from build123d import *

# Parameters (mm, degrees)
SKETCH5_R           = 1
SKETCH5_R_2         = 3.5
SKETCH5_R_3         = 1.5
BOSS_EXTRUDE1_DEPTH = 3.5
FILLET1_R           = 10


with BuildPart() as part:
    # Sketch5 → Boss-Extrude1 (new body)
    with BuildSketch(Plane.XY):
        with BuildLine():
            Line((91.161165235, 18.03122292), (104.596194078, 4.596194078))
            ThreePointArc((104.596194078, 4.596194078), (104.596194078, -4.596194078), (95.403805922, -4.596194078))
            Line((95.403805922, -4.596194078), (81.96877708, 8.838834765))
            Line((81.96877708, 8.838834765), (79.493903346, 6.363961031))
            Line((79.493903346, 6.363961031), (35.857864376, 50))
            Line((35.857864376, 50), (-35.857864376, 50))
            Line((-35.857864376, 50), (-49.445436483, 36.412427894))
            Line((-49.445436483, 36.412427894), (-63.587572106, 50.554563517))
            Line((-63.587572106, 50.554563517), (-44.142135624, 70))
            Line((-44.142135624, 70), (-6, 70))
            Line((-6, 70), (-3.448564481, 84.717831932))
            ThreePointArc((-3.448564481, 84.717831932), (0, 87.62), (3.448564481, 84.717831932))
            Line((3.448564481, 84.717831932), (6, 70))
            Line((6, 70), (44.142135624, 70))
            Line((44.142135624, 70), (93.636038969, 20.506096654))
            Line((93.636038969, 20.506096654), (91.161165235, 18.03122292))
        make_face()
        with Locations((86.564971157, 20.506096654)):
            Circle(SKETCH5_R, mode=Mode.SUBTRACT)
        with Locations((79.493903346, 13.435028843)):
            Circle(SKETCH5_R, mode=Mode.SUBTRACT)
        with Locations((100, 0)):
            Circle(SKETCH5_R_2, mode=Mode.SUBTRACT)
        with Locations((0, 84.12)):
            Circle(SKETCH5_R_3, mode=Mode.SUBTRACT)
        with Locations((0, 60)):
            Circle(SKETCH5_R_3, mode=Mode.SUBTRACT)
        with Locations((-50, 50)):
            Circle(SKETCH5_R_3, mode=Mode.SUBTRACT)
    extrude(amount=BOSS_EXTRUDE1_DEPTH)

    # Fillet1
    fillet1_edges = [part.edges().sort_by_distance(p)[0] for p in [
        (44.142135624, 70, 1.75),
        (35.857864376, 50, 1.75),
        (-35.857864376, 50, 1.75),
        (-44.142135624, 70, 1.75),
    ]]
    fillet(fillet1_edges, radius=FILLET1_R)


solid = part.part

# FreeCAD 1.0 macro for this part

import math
import FreeCAD as App
import Part
import Sketcher
Q = App.Units.Quantity


def edges_at(feature, points):
    """Names of the edges that pass closest to the given points."""
    edges = feature.Shape.Edges
    near = lambda p: min(range(len(edges)), key=lambda i: edges[i].distToShape(Part.Vertex(*p))[0])
    return sorted({f"Edge{near(p) + 1}" for p in points})

doc = App.newDocument("Part")
body = doc.addObject("PartDesign::Body", "Body")

# Sketch on XY plane
sketch1 = body.newObject("Sketcher::SketchObject", "Sketch")
sketch1.AttachmentSupport = (doc.getObject("XY_Plane"), [""])
sketch1.MapMode = "FlatFace"
sketch1.addGeometry(Part.LineSegment(App.Vector(104.6, 4.6, 0), App.Vector(91.2, 18, 0)), False)
sketch1.addGeometry(Part.LineSegment(App.Vector(91.2, 18, 0), App.Vector(93.6, 20.5, 0)), False)
sketch1.addGeometry(Part.LineSegment(App.Vector(93.6, 20.5, 0), App.Vector(44.1, 70, 0)), False)
sketch1.addGeometry(Part.LineSegment(App.Vector(44.1, 70, 0), App.Vector(6, 70, 0)), False)
sketch1.addGeometry(Part.LineSegment(App.Vector(6, 70, 0), App.Vector(3.4, 84.7, 0)), False)
sketch1.addGeometry(Part.ArcOfCircle(Part.Circle(App.Vector(0, 84.1, 0), App.Vector(0, 0, 1), 3.5), math.radians(10), math.radians(170)), False)
sketch1.addGeometry(Part.LineSegment(App.Vector(-3.4, 84.7, 0), App.Vector(-6, 70, 0)), False)
sketch1.addGeometry(Part.LineSegment(App.Vector(-6, 70, 0), App.Vector(-44.1, 70, 0)), False)
sketch1.addGeometry(Part.LineSegment(App.Vector(-44.1, 70, 0), App.Vector(-63.6, 50.6, 0)), False)
sketch1.addGeometry(Part.LineSegment(App.Vector(-63.6, 50.6, 0), App.Vector(-49.4, 36.4, 0)), False)
sketch1.addGeometry(Part.LineSegment(App.Vector(-49.4, 36.4, 0), App.Vector(-35.9, 50, 0)), False)
sketch1.addGeometry(Part.LineSegment(App.Vector(-35.9, 50, 0), App.Vector(35.9, 50, 0)), False)
sketch1.addGeometry(Part.LineSegment(App.Vector(35.9, 50, 0), App.Vector(79.5, 6.4, 0)), False)
sketch1.addGeometry(Part.LineSegment(App.Vector(79.5, 6.4, 0), App.Vector(82, 8.8, 0)), False)
sketch1.addGeometry(Part.LineSegment(App.Vector(82, 8.8, 0), App.Vector(95.4, -4.6, 0)), False)
sketch1.addGeometry(Part.ArcOfCircle(Part.Circle(App.Vector(100, 0, 0), App.Vector(0, 0, 1), 6.5), math.radians(-135), math.radians(45)), False)
sketch1.addGeometry(Part.Circle(App.Vector(100, 0, 0), App.Vector(0, 0, 1), 3.5), False)
sketch1.addGeometry(Part.Circle(App.Vector(79.5, 13.4, 0), App.Vector(0, 0, 1), 1), False)
sketch1.addGeometry(Part.Circle(App.Vector(86.6, 20.5, 0), App.Vector(0, 0, 1), 1), False)
sketch1.addGeometry(Part.Circle(App.Vector(0, 60, 0), App.Vector(0, 0, 1), 1.5), False)
sketch1.addGeometry(Part.Circle(App.Vector(-50, 50, 0), App.Vector(0, 0, 1), 1.5), False)
sketch1.addGeometry(Part.Circle(App.Vector(0, 84.1, 0), App.Vector(0, 0, 1), 1.5), False)
sketch1.addConstraint(Sketcher.Constraint("Coincident", 0, 2, 1, 1))
sketch1.addConstraint(Sketcher.Constraint("Coincident", 1, 2, 2, 1))
sketch1.addConstraint(Sketcher.Constraint("Coincident", 2, 2, 3, 1))
sketch1.addConstraint(Sketcher.Constraint("Coincident", 3, 2, 4, 1))
sketch1.addConstraint(Sketcher.Constraint("Tangent", 4, 2, 5, 1))
sketch1.addConstraint(Sketcher.Constraint("Tangent", 5, 2, 6, 1))
sketch1.addConstraint(Sketcher.Constraint("Coincident", 6, 2, 7, 1))
sketch1.addConstraint(Sketcher.Constraint("Coincident", 7, 2, 8, 1))
sketch1.addConstraint(Sketcher.Constraint("Coincident", 8, 2, 9, 1))
sketch1.addConstraint(Sketcher.Constraint("Coincident", 9, 2, 10, 1))
sketch1.addConstraint(Sketcher.Constraint("Coincident", 10, 2, 11, 1))
sketch1.addConstraint(Sketcher.Constraint("Coincident", 11, 2, 12, 1))
sketch1.addConstraint(Sketcher.Constraint("Coincident", 12, 2, 13, 1))
sketch1.addConstraint(Sketcher.Constraint("Coincident", 13, 2, 14, 1))
sketch1.addConstraint(Sketcher.Constraint("Tangent", 14, 2, 15, 1))
sketch1.addConstraint(Sketcher.Constraint("Tangent", 15, 2, 0, 1))
sketch1.addConstraint(Sketcher.Constraint("Horizontal", 3))
sketch1.addConstraint(Sketcher.Constraint("Horizontal", 7))
sketch1.addConstraint(Sketcher.Constraint("Horizontal", 11))
sketch1.addConstraint(Sketcher.Constraint("Coincident", 16, 3, 15, 3))
sketch1.addConstraint(Sketcher.Constraint("Coincident", 21, 3, 5, 3))
sketch1.addConstraint(Sketcher.Constraint("Equal", 5, 16))
sketch1.addConstraint(Sketcher.Constraint("Equal", 17, 18))
sketch1.addConstraint(Sketcher.Constraint("Equal", 19, 20))
sketch1.addConstraint(Sketcher.Constraint("Equal", 20, 21))
sketch1.addConstraint(Sketcher.Constraint("Symmetric", 4, 2, 5, 2, -2))
sketch1.addConstraint(Sketcher.Constraint("Symmetric", 2, 2, 7, 2, -2))
sketch1.addConstraint(Sketcher.Constraint("PointOnObject", 15, 3, -1))
sketch1.addConstraint(Sketcher.Constraint("PointOnObject", 19, 3, -2))
sketch1.addConstraint(Sketcher.Constraint("Perpendicular", 0, 1))
sketch1.addConstraint(Sketcher.Constraint("Perpendicular", 1, 2))
sketch1.addConstraint(Sketcher.Constraint("Perpendicular", 2, 8))
sketch1.addConstraint(Sketcher.Constraint("Perpendicular", 8, 9))
sketch1.addConstraint(Sketcher.Constraint("Perpendicular", 9, 10))
sketch1.addConstraint(Sketcher.Constraint("Perpendicular", 10, 12))
sketch1.addConstraint(Sketcher.Constraint("Perpendicular", 12, 13))
sketch1.addConstraint(Sketcher.Constraint("Perpendicular", 13, 14))
sketch1.addConstraint(Sketcher.Constraint("Horizontal", 18, 3, 1, 2))
sketch1.addConstraint(Sketcher.Constraint("Horizontal", 20, 3, 10, 2))
sketch1.addConstraint(Sketcher.Constraint("Vertical", 17, 3, 12, 2))
sketch1.addConstraint(Sketcher.Constraint("Equal", 1, 13))
sketch1.addConstraint(Sketcher.Constraint("Equal", 0, 14))
sketch1.addConstraint(Sketcher.Constraint("Diameter", 16, Q("7 mm")))
sketch1.addConstraint(Sketcher.Constraint("Diameter", 17, Q("2 mm")))
sketch1.addConstraint(Sketcher.Constraint("Diameter", 19, Q("3 mm")))
sketch1.addConstraint(Sketcher.Constraint("Radius", 15, Q("6.5 mm")))
sketch1.addConstraint(Sketcher.Constraint("Angle", 0, Q("135 deg")))
sketch1.addConstraint(Sketcher.Constraint("Distance", 0, Q("19 mm")))
sketch1.addConstraint(Sketcher.Constraint("Distance", 9, Q("20 mm")))
sketch1.addConstraint(Sketcher.Constraint("DistanceX", -1, 1, 15, 3, Q("100 mm")))
sketch1.addConstraint(Sketcher.Constraint("DistanceY", -1, 1, 19, 3, Q("60 mm")))
sketch1.addConstraint(Sketcher.Constraint("DistanceX", 20, 3, -1, 1, Q("50 mm")))
sketch1.addConstraint(Sketcher.Constraint("DistanceY", -1, 1, 20, 3, Q("50 mm")))
sketch1.addConstraint(Sketcher.Constraint("DistanceY", -1, 1, 2, 2, Q("70 mm")))
sketch1.addConstraint(Sketcher.Constraint("DistanceX", -1, 1, 3, 2, Q("6 mm")))
sketch1.addConstraint(Sketcher.Constraint("Distance", 1, Q("3.5 mm")))
sketch1.addConstraint(Sketcher.Constraint("Distance", 8, Q("27.5 mm")))
sketch1.addConstraint(Sketcher.Constraint("DistanceY", -1, 1, 5, 3, Q("84.12 mm")))
sketch1.addConstraint(Sketcher.Constraint("DistanceY", -1, 1, 17, 3, Q("13.435029 mm")))
sketch1.addConstraint(Sketcher.Constraint("DistanceX", -1, 1, 18, 3, Q("86.564971 mm")))
pad1 = body.newObject("PartDesign::Pad", "Pad")
pad1.Profile = sketch1
pad1.Length = 3.5
doc.recompute()

fillet = body.newObject("PartDesign::Fillet", "Fillet")
fillet.Base = (pad1, edges_at(pad1, [
    (44.142, 70, 1.75),
    (35.858, 50, 1.75),
    (-35.858, 50, 1.75),
    (-44.142, 70, 1.75),
]))
fillet.Radius = 10

doc.recompute()
